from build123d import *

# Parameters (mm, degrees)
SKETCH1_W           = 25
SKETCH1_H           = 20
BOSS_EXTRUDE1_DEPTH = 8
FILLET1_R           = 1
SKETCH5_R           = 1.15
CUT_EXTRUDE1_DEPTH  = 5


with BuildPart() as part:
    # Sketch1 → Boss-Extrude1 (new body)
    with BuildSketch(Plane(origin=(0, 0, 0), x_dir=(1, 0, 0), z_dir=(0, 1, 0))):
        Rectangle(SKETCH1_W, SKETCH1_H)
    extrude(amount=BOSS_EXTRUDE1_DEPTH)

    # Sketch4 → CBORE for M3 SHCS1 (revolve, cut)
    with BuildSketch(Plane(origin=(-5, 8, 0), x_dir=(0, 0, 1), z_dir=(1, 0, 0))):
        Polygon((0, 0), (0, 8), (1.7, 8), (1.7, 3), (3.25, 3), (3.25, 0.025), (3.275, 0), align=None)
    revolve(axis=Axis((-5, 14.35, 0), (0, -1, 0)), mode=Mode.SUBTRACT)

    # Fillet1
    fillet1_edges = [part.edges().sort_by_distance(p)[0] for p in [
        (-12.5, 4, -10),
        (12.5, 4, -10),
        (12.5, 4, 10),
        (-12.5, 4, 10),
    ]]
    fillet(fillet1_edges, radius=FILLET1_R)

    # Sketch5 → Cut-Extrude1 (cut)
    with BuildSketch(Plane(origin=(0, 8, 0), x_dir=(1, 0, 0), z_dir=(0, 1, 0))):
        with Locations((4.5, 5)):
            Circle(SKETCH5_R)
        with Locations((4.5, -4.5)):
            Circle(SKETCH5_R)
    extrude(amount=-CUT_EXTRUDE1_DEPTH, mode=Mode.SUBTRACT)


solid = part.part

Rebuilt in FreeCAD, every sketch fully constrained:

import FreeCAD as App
import Part
import Sketcher
Q = App.Units.Quantity


def edges_at(feature, points):
    """Names of the edges that pass closest to the given points."""
    edges = feature.Shape.Edges
    near = lambda p: min(range(len(edges)), key=lambda i: edges[i].distToShape(Part.Vertex(*p))[0])
    return sorted({f"Edge{near(p) + 1}" for p in points})


def add_polygon(sketch, points):
    """Adds a closed chain of lines whose ends are joined by coincident constraints."""
    first, n = sketch.GeometryCount, len(points)
    for a, b in zip(points, points[1:] + points[:1]):
        sketch.addGeometry(Part.LineSegment(App.Vector(*a, 0), App.Vector(*b, 0)), False)
    for i in range(n):
        sketch.addConstraint(Sketcher.Constraint("Coincident", first + i, 2, first + (i + 1) % n, 1))

doc = App.newDocument("Part")
params = doc.addObject("Spreadsheet::Sheet", "Params")
for row, (alias, value) in enumerate([
    ("sketch1_width", "25 mm"),
    ("sketch1_height", "20 mm"),
    ("pad1_length", "8 mm"),
    ("sketch2_width", "8 mm"),
    ("sketch2_width2", "5 mm"),
    ("sketch2_height", "1.7 mm"),
    ("sketch2_height2", "1.55 mm"),
    ("groove_angle", "360 deg"),
    ("fillet_radius", "1 mm"),
    ("sketch3_diameter", "2.3 mm"),
    ("pocket1_length", "5 mm"),
], start=1):
    params.set(f"A{row}", alias)
    params.set(f"B{row}", "=" + value)
    params.setAlias(f"B{row}", alias)

body = doc.addObject("PartDesign::Body", "Body")

sketch1 = body.newObject("Sketcher::SketchObject", "Sketch")
sketch1.AttachmentSupport = (doc.getObject("XZ_Plane"), [""])
sketch1.MapMode = "FlatFace"
add_polygon(sketch1, [(-12, -10), (-12, 10), (12, 10), (12, -10)])
sketch1.addConstraint([
    Sketcher.Constraint("Vertical", 0),
    Sketcher.Constraint("Horizontal", 1),
    Sketcher.Constraint("Vertical", 2),
    Sketcher.Constraint("Horizontal", 3),
    Sketcher.Constraint("Symmetric", 0, 2, 2, 2, -1, 1),
    Sketcher.Constraint("DistanceX", 1, 1, 1, 2, Q("25 mm")),
    Sketcher.Constraint("DistanceY", 0, 1, 0, 2, Q("20 mm")),
])
sketch1.setExpression("Constraints[9]", "Params.sketch1_width")
sketch1.setExpression("Constraints[10]", "Params.sketch1_height")
pad1 = body.newObject("PartDesign::Pad", "Pad")
pad1.Profile = sketch1
pad1.setExpression("Length", "Params.pad1_length")
pad1.Reversed = True

sketch2 = body.newObject("Sketcher::SketchObject", "Sketch001")
sketch2.AttachmentSupport = (doc.getObject("YZ_Plane"), [""])
sketch2.MapMode = "FlatFace"
sketch2.AttachmentOffset = App.Placement(App.Vector(0, 0, -5), App.Rotation())
add_polygon(sketch2, [(0, 0), (8, 0), (8, 3.275), (7.975, 3.25), (5, 3.25), (5, 1.7), (0, 1.7)])
sketch2.addConstraint([
    Sketcher.Constraint("Horizontal", 0),
    Sketcher.Constraint("Vertical", 1),
    Sketcher.Constraint("Horizontal", 3),
    Sketcher.Constraint("Vertical", 4),
    Sketcher.Constraint("Horizontal", 5),
    Sketcher.Constraint("Vertical", 6),
    Sketcher.Constraint("Coincident", 6, 2, -1, 1),
    Sketcher.Constraint("DistanceX", 0, 1, 0, 2, Q("8 mm")),
    Sketcher.Constraint("DistanceX", 5, 2, 5, 1, Q("5 mm")),
    Sketcher.Constraint("Angle", 2, Q("-135 deg")),
    Sketcher.Constraint("DistanceY", 6, 2, 6, 1, Q("1.7 mm")),
    Sketcher.Constraint("DistanceY", 4, 2, 4, 1, Q("1.55 mm")),
    Sketcher.Constraint("DistanceX", 3, 2, 3, 1, Q("2.975 mm")),
])
sketch2.setExpression("Constraints[14]", "Params.sketch2_width")
sketch2.setExpression("Constraints[15]", "Params.sketch2_width2")
sketch2.setExpression("Constraints[17]", "Params.sketch2_height")
sketch2.setExpression("Constraints[18]", "Params.sketch2_height2")
groove = body.newObject("PartDesign::Groove", "Groove")
groove.Profile = sketch2
groove.ReferenceAxis = (sketch2, ["H_Axis"])
groove.setExpression("Angle", "Params.groove_angle")
doc.recompute()

fillet = body.newObject("PartDesign::Fillet", "Fillet")
fillet.Base = (groove, edges_at(groove, [
    (-12.5, 4, -10),
    (12.5, 4, -10),
    (12.5, 4, 10),
    (-12.5, 4, 10),
]))
fillet.setExpression("Radius", "Params.fillet_radius")

sketch3 = body.newObject("Sketcher::SketchObject", "Sketch002")
sketch3.AttachmentSupport = (doc.getObject("XZ_Plane"), [""])
sketch3.MapMode = "FlatFace"
sketch3.AttachmentOffset = App.Placement(App.Vector(0, 0, -8), App.Rotation())
sketch3.addGeometry([
    Part.Circle(App.Vector(4.5, -5, 0), App.Vector(0, 0, 1), 1.1),
    Part.Circle(App.Vector(4.5, 4.5, 0), App.Vector(0, 0, 1), 1.1),
], False)
sketch3.addConstraint([
    Sketcher.Constraint("Equal", 0, 1),
    Sketcher.Constraint("Vertical", 0, 3, 1, 3),
    Sketcher.Constraint("Diameter", 0, Q("2.3 mm")),
    Sketcher.Constraint("DistanceY", 0, 3, -1, 1, Q("5 mm")),
    Sketcher.Constraint("DistanceX", -1, 1, 0, 3, Q("4.5 mm")),
    Sketcher.Constraint("DistanceY", -1, 1, 1, 3, Q("4.5 mm")),
])
sketch3.setExpression("Constraints[2]", "Params.sketch3_diameter")
pocket1 = body.newObject("PartDesign::Pocket", "Pocket")
pocket1.Profile = sketch3
pocket1.setExpression("Length", "Params.pocket1_length")
pocket1.Reversed = True

doc.recompute()
